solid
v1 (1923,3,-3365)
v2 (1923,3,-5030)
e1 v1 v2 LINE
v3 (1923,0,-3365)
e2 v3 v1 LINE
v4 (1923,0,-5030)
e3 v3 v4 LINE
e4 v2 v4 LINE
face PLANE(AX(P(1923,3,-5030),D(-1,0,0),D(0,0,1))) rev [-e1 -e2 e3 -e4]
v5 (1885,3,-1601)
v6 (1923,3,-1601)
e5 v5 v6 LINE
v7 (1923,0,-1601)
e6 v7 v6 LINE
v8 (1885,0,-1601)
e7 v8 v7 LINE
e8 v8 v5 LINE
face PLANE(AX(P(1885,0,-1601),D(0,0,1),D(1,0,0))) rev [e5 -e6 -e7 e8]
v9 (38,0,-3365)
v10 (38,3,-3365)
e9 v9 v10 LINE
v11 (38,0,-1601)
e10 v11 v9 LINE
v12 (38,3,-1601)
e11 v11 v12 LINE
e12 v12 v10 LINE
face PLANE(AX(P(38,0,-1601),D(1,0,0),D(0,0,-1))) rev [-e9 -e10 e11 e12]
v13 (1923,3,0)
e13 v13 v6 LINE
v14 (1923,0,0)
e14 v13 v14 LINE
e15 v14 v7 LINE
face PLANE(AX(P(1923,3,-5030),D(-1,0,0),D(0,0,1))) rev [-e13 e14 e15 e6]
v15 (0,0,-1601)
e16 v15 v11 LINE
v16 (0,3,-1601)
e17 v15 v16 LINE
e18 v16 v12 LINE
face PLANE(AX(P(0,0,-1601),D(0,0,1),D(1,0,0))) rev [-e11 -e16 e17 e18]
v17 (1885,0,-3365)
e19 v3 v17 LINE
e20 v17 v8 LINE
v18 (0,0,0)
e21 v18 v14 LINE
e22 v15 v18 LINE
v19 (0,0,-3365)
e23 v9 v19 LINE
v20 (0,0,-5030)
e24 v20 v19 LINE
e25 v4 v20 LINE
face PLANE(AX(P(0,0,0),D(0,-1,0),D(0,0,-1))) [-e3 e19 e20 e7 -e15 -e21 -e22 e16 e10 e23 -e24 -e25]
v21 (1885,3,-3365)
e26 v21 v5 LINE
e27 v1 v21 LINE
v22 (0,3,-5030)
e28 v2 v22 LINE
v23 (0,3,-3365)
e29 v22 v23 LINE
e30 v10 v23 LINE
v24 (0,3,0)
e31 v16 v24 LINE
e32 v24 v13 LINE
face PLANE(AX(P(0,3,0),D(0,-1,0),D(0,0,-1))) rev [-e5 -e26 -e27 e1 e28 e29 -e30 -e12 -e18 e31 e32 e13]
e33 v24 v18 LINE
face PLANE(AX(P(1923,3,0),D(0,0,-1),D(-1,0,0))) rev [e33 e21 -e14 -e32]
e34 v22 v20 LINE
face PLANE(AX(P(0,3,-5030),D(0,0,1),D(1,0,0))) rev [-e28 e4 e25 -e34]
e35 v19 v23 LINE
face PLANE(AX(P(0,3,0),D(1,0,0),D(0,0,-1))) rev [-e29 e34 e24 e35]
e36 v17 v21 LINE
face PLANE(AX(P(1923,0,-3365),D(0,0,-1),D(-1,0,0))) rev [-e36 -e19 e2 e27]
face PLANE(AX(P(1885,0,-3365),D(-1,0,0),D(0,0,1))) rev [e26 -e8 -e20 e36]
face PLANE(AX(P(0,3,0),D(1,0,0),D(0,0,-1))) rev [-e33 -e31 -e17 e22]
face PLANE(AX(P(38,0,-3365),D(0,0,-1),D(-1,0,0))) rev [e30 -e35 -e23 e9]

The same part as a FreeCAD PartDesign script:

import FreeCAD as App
import Part
import Sketcher
from FreeCAD import Vector
Q = App.Units.Quantity


def add_polygon(sketch, points):
    """Adds a closed chain of lines whose ends are joined by coincident constraints."""
    first, n = sketch.GeometryCount, len(points)
    for a, b in zip(points, points[1:] + points[:1]):
        sketch.addGeometry(Part.LineSegment(App.Vector(*a, 0), App.Vector(*b, 0)), False)
    for i in range(n):
        sketch.addConstraint(Sketcher.Constraint("Coincident", first + i, 2, first + (i + 1) % n, 1))

doc = App.newDocument("Part")
body = doc.addObject("PartDesign::Body", "Body")

# Sketch on XZ plane
sketch1 = doc.addObject("Sketcher::SketchObject", "Sketch")
body.addObject(sketch1)
sketch1.AttachmentSupport = (doc.XZ_Plane, [""])
sketch1.MapMode = "FlatFace"
add_polygon(sketch1, [(0, -5030), (0, 0), (1923, 0), (1923, -5030)])  # lines 0-3
sketch1.addConstraint(Sketcher.Constraint("Vertical", 0))
sketch1.addConstraint(Sketcher.Constraint("Horizontal", 1))
sketch1.addConstraint(Sketcher.Constraint("Vertical", 2))
sketch1.addConstraint(Sketcher.Constraint("Horizontal", 3))
sketch1.addConstraint(Sketcher.Constraint("Coincident", 0, 2, -1, 1))
sketch1.addConstraint(Sketcher.Constraint("DistanceX", 1, 1, 1, 2, Q("1923 mm")))
sketch1.addConstraint(Sketcher.Constraint("DistanceY", 0, 1, 0, 2, Q("5030 mm")))
pad1 = doc.addObject("PartDesign::Pad", "Pad")
body.addObject(pad1)
pad1.Profile = sketch1
pad1.Length = 3
pad1.Reversed = True

# Sketch on XZ plane
sketch2 = doc.addObject("Sketcher::SketchObject", "Sketch001")
body.addObject(sketch2)
sketch2.AttachmentSupport = (doc.XZ_Plane, [""])
sketch2.MapMode = "FlatFace"
sketch2.AttachmentOffset = App.Placement(Vector(0, 0, -3), App.Rotation())
add_polygon(sketch2, [(0, -3365), (0, -1601), (38, -1601), (38, -3365)])  # lines 0-3
add_polygon(sketch2, [(1885, -3365), (1885, -1601), (1923, -1601), (1923, -3365)])  # lines 4-7
sketch2.addConstraint(Sketcher.Constraint("Vertical", 0))
sketch2.addConstraint(Sketcher.Constraint("Horizontal", 1))
sketch2.addConstraint(Sketcher.Constraint("Vertical", 2))
sketch2.addConstraint(Sketcher.Constraint("Horizontal", 3))
sketch2.addConstraint(Sketcher.Constraint("Vertical", 4))
sketch2.addConstraint(Sketcher.Constraint("Horizontal", 5))
sketch2.addConstraint(Sketcher.Constraint("Vertical", 6))
sketch2.addConstraint(Sketcher.Constraint("Horizontal", 7))
sketch2.addConstraint(Sketcher.Constraint("PointOnObject", 0, 2, -2))
sketch2.addConstraint(Sketcher.Constraint("Horizontal", 1, 2, 4, 2))
sketch2.addConstraint(Sketcher.Constraint("Horizontal", 3, 2, 6, 2))
sketch2.addConstraint(Sketcher.Constraint("Equal", 3, 5))
sketch2.addConstraint(Sketcher.Constraint("DistanceX", 1, 1, 1, 2, Q("38 mm")))
sketch2.addConstraint(Sketcher.Constraint("DistanceY", 0, 1, 0, 2, Q("1764 mm")))
sketch2.addConstraint(Sketcher.Constraint("DistanceY", 0, 2, -1, 1, Q("1601 mm")))
sketch2.addConstraint(Sketcher.Constraint("DistanceX", -1, 1, 4, 2, Q("1885 mm")))
pocket1 = doc.addObject("PartDesign::Pocket", "Pocket")
body.addObject(pocket1)
pocket1.Profile = sketch2
pocket1.Length = 3
pocket1.Reversed = True

doc.recompute()
